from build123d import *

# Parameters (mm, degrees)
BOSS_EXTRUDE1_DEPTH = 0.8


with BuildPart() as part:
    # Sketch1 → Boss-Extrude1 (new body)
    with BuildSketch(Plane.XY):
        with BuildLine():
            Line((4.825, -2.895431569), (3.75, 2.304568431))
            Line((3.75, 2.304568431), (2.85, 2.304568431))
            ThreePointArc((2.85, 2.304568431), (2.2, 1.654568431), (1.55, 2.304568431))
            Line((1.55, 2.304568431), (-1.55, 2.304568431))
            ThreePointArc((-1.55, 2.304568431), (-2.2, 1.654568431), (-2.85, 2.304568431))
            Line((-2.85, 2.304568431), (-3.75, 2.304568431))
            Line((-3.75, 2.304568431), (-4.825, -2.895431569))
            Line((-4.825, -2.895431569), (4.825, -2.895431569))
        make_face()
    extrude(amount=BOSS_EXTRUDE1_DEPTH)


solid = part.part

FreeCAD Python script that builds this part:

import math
import FreeCAD as App
import Part
import Sketcher
Q = App.Units.Quantity

doc = App.newDocument("Part")
body = doc.addObject("PartDesign::Body", "Body")

# Sketch on XY plane
sketch1 = body.newObject("Sketcher::SketchObject", "Sketch")
sketch1.AttachmentSupport = (doc.getObject("XY_Plane"), [""])
sketch1.MapMode = "FlatFace"
sketch1.addGeometry([
    Part.LineSegment(App.Vector(4.8, -2.9, 0), App.Vector(3.8, 2.3, 0)),  # 0
    Part.LineSegment(App.Vector(3.8, 2.3, 0), App.Vector(2.9, 2.3, 0)),  # 1
    Part.ArcOfCircle(Part.Circle(App.Vector(2.2, 2.3, 0), App.Vector(0, 0, 1), 0.7), math.radians(180), math.radians(360)),  # 2
    Part.LineSegment(App.Vector(1.6, 2.3, 0), App.Vector(-1.6, 2.3, 0)),  # 3
    Part.ArcOfCircle(Part.Circle(App.Vector(-2.2, 2.3, 0), App.Vector(0, 0, 1), 0.7), math.radians(180), math.radians(360)),  # 4
    Part.LineSegment(App.Vector(-2.9, 2.3, 0), App.Vector(-3.8, 2.3, 0)),  # 5
    Part.LineSegment(App.Vector(-3.8, 2.3, 0), App.Vector(-4.8, -2.9, 0)),  # 6
    Part.LineSegment(App.Vector(-4.8, -2.9, 0), App.Vector(4.8, -2.9, 0)),  # 7
], False)
sketch1.addConstraint([
    Sketcher.Constraint("Coincident", 0, 2, 1, 1),
    Sketcher.Constraint("Coincident", 1, 2, 2, 2),
    Sketcher.Constraint("Coincident", 2, 1, 3, 1),
    Sketcher.Constraint("Coincident", 3, 2, 4, 2),
    Sketcher.Constraint("Coincident", 4, 1, 5, 1),
    Sketcher.Constraint("Coincident", 5, 2, 6, 1),
    Sketcher.Constraint("Coincident", 6, 2, 7, 1),
    Sketcher.Constraint("Coincident", 7, 2, 0, 1),
    Sketcher.Constraint("Horizontal", 1),
    Sketcher.Constraint("Horizontal", 3),
    Sketcher.Constraint("Horizontal", 5),
    Sketcher.Constraint("Horizontal", 7),
    Sketcher.Constraint("Equal", 2, 4),
    Sketcher.Constraint("Symmetric", 2, 3, 4, 3, -2),
    Sketcher.Constraint("Symmetric", 0, 2, 5, 2, -2),
    Sketcher.Constraint("Horizontal", 4, 3, 0, 2),
    Sketcher.Constraint("Horizontal", 1, 2, 2, 1),
    Sketcher.Constraint("Equal", 0, 6),
    Sketcher.Constraint("Radius", 2, Q("0.65 mm")),
    Sketcher.Constraint("DistanceX", 1, 2, 1, 1, Q("0.9 mm")),
    Sketcher.Constraint("DistanceX", 3, 2, 3, 1, Q("3.1 mm")),
    Sketcher.Constraint("DistanceX", 7, 1, 7, 2, Q("9.65 mm")),
    Sketcher.Constraint("DistanceY", 6, 2, 5, 2, Q("5.2 mm")),
    Sketcher.Constraint("DistanceY", -1, 1, 2, 3, Q("2.304568 mm")),
])
pad1 = body.newObject("PartDesign::Pad", "Pad")
pad1.Profile = sketch1
pad1.Length = 0.8

doc.recompute()
